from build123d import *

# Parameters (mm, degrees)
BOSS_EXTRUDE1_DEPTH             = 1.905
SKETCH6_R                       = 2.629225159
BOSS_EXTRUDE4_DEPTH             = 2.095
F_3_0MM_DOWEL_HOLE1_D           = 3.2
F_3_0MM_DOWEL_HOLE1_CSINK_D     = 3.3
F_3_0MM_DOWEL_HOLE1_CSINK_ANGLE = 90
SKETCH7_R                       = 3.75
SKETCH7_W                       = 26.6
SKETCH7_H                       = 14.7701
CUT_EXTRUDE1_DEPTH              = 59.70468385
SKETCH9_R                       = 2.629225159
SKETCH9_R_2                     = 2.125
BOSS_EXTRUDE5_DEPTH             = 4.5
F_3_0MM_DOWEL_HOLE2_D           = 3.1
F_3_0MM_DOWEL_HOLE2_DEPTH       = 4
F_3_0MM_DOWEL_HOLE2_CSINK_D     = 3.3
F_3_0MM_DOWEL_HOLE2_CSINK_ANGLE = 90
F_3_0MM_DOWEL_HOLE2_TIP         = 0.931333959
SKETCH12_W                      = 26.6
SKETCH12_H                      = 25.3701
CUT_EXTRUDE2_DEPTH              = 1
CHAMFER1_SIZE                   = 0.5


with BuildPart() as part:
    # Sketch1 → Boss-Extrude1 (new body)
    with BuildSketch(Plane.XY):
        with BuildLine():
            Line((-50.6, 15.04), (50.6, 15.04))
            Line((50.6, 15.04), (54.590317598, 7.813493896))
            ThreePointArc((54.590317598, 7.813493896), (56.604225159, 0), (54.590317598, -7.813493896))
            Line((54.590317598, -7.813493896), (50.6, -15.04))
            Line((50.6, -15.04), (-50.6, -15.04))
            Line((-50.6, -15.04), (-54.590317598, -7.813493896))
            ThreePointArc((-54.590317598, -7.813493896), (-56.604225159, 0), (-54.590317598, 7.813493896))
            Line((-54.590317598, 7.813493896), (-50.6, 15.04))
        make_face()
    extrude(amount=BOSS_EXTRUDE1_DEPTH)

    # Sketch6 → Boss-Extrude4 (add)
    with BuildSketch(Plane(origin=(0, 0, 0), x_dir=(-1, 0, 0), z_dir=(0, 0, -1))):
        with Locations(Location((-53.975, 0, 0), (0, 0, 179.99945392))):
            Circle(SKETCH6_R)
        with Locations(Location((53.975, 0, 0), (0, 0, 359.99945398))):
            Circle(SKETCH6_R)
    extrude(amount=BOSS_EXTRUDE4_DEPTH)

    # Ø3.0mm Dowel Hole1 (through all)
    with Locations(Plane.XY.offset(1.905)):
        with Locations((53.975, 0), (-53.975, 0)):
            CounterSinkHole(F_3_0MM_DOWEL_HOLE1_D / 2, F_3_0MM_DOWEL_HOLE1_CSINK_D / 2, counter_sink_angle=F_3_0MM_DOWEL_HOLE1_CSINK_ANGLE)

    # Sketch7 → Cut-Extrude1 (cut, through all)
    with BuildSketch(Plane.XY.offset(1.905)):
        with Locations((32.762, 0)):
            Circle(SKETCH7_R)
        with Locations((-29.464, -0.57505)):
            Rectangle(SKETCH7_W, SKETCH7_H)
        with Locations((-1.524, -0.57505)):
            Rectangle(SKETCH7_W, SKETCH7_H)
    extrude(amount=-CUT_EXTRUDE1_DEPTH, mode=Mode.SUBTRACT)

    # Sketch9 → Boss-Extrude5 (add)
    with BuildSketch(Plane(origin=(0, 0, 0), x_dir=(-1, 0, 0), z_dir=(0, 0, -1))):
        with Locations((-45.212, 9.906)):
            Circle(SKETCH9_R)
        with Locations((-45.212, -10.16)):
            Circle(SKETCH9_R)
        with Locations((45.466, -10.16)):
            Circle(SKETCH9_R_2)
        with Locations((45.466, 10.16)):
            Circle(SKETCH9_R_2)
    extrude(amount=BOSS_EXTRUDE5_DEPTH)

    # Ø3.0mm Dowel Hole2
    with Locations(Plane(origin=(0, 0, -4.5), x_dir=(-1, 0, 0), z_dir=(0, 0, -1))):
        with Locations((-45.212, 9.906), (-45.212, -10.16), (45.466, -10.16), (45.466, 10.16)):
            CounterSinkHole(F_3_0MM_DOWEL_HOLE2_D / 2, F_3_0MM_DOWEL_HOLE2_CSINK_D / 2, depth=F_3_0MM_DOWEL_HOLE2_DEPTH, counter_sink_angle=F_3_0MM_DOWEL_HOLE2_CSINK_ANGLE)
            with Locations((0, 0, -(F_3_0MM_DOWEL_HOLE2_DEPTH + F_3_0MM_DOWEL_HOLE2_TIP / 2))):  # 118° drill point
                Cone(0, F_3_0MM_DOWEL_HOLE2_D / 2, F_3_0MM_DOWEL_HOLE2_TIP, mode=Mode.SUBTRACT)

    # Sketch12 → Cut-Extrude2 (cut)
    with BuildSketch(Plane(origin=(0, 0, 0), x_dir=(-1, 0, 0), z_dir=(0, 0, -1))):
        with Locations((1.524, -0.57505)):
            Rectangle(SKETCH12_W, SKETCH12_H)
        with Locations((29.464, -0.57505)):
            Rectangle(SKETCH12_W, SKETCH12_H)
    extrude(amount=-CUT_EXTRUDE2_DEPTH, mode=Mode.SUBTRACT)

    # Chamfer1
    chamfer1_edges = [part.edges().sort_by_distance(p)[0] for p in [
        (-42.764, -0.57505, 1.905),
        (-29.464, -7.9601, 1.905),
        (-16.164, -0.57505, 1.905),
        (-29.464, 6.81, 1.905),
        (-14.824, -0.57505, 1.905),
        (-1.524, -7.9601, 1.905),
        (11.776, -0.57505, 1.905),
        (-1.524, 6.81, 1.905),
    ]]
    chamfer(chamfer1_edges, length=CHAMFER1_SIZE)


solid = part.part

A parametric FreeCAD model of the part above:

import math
import FreeCAD as App
import Part
import Sketcher


def edges_at(feature, points):
    """Names of the edges that pass closest to the given points."""
    edges = feature.Shape.Edges
    near = lambda p: min(range(len(edges)), key=lambda i: edges[i].distToShape(Part.Vertex(*p))[0])
    return sorted({f"Edge{near(p) + 1}" for p in points})

doc = App.newDocument("Part")
params = doc.addObject("Spreadsheet::Sheet", "Params")
for row, (alias, value) in enumerate([
    ("sketch1_width", "101.2 mm"),
    ("pad1_length", "1.905 mm"),
    ("pad2_length", "2.095 mm"),
    ("sketch3_diameter", "3.2 mm"),
    ("hole_diameter", "3.2 mm"),
    ("hole_csink_diameter", "3.3 mm"),
    ("sketch4_diameter", "7.5 mm"),
    ("sketch4_width", "26.6 mm"),
    ("sketch5_diameter", "4.25 mm"),
    ("pad3_length", "4.5 mm"),
    ("sketch6_diameter", "3.1 mm"),
    ("hole2_diameter", "3.1 mm"),
    ("hole2_depth", "4 mm"),
    ("hole2_csink_diameter", "3.3 mm"),
    ("sketch7_width", "26.6 mm"),
    ("pocket2_length", "1 mm"),
    ("chamfer_size", "0.5 mm"),
], start=1):
    params.set(f"A{row}", alias)
    params.set(f"B{row}", "=" + value)
    params.setAlias(f"B{row}", alias)

body = doc.addObject("PartDesign::Body", "Body")

sketch1 = doc.addObject("Sketcher::SketchObject", "Sketch")
body.addObject(sketch1)
sketch1.AttachmentSupport = (doc.XY_Plane, [""])
sketch1.MapMode = "FlatFace"
sketch1.addGeometry([
    Part.LineSegment(App.Vector(50.6, 15.04, 0), App.Vector(-50.6, 15.04, 0)),
    Part.LineSegment(App.Vector(-50.6, 15.04, 0), App.Vector(-54.590318, 7.813494, 0)),
    Part.ArcOfCircle(Part.Circle(App.Vector(-40.44, 0, 0), App.Vector(0, 0, 1), 16.164225), math.radians(151.093487), math.radians(208.906513)),
    Part.LineSegment(App.Vector(-54.590318, -7.813494, 0), App.Vector(-50.6, -15.04, 0)),
    Part.LineSegment(App.Vector(-50.6, -15.04, 0), App.Vector(50.6, -15.04, 0)),
    Part.LineSegment(App.Vector(50.6, -15.04, 0), App.Vector(54.590318, -7.813494, 0)),
    Part.ArcOfCircle(Part.Circle(App.Vector(40.44, 0, 0), App.Vector(0, 0, 1), 16.164225), math.radians(-28.906513), math.radians(28.906513)),
    Part.LineSegment(App.Vector(54.590318, 7.813494, 0), App.Vector(50.6, 15.04, 0)),
], False)
sketch1.addConstraint([
    Sketcher.Constraint("Coincident", 0, 2, 1, 1),
    Sketcher.Constraint("Tangent", 1, 2, 2, 1),
    Sketcher.Constraint("Tangent", 2, 2, 3, 1),
    Sketcher.Constraint("Coincident", 3, 2, 4, 1),
    Sketcher.Constraint("Coincident", 4, 2, 5, 1),
    Sketcher.Constraint("Tangent", 5, 2, 6, 1),
    Sketcher.Constraint("Tangent", 6, 2, 7, 1),
    Sketcher.Constraint("Coincident", 7, 2, 0, 1),
    Sketcher.Constraint("Horizontal", 0),
    Sketcher.Constraint("Horizontal", 4),
    Sketcher.Constraint("Equal", 2, 6),
    Sketcher.Constraint("Symmetric", 2, 3, 6, 3, -1, 1),
    Sketcher.Constraint("Symmetric", 0, 2, 4, 2, -1, 1),
    Sketcher.Constraint("Symmetric", 2, 2, 5, 2, -2),
    Sketcher.Constraint("Parallel", 3, 7),
    Sketcher.Constraint("DistanceX", 0, 2, 0, 1, 101.2),
    Sketcher.Constraint("DistanceX", 2, 3, -1, 1, 40.44),
    Sketcher.Constraint("DistanceY", -1, 1, 0, 2, 15.04),
    Sketcher.Constraint("Distance", 1, 8.255),
])
sketch1.setExpression("Constraints[15]", "Params.sketch1_width")
pad1 = doc.addObject("PartDesign::Pad", "Pad")
body.addObject(pad1)
pad1.Profile = sketch1
pad1.setExpression("Length", "Params.pad1_length")

sketch2 = doc.addObject("Sketcher::SketchObject", "Sketch001")
body.addObject(sketch2)
sketch2.AttachmentSupport = (doc.XY_Plane, [""])
sketch2.MapMode = "FlatFace"
sketch2.addGeometry([
    Part.Circle(App.Vector(53.975, 0, 0), App.Vector(0, 0, 1), 2.629225),
    Part.Circle(App.Vector(-53.975, 0, 0), App.Vector(0, 0, 1), 2.629225),
], False)
sketch2.addConstraint([
    Sketcher.Constraint("Equal", 0, 1),
    Sketcher.Constraint("Symmetric", 0, 3, 1, 3, -1, 1),
    Sketcher.Constraint("PointOnObject", 0, 3, -1),
    Sketcher.Constraint("Diameter", 0, 5.25845),
    Sketcher.Constraint("DistanceX", 1, 3, 0, 3, 107.95),
])
pad2 = doc.addObject("PartDesign::Pad", "Pad001")
body.addObject(pad2)
pad2.Profile = sketch2
pad2.setExpression("Length", "Params.pad2_length")
pad2.Reversed = True

sketch3 = doc.addObject("Sketcher::SketchObject", "Sketch002")
body.addObject(sketch3)
sketch3.AttachmentSupport = (doc.XY_Plane, [""])
sketch3.MapMode = "FlatFace"
sketch3.AttachmentOffset = App.Placement(App.Vector(0, 0, 1.905), App.Rotation())
sketch3.addGeometry([
    Part.Circle(App.Vector(53.975, 0, 0), App.Vector(0, 0, 1), 1.6),
    Part.Circle(App.Vector(-53.975, 0, 0), App.Vector(0, 0, 1), 1.6),
], False)
sketch3.addConstraint([
    Sketcher.Constraint("Equal", 0, 1),
    Sketcher.Constraint("Symmetric", 0, 3, 1, 3, -1, 1),
    Sketcher.Constraint("PointOnObject", 0, 3, -1),
    Sketcher.Constraint("Diameter", 0, 3.2),
    Sketcher.Constraint("DistanceX", 1, 3, 0, 3, 107.95),
])
sketch3.setExpression("Constraints[3]", "Params.sketch3_diameter")
doc.recompute()
hole = doc.addObject("PartDesign::Hole", "Hole")
body.addObject(hole)
hole.Profile = sketch3
hole.ThreadType = "None"
hole.setExpression("Diameter", "Params.hole_diameter")
hole.DepthType = "ThroughAll"
hole.HoleCutType = "Countersink"
hole.setExpression("HoleCutDiameter", "Params.hole_csink_diameter")
hole.HoleCutCountersinkAngle = 90

sketch4 = doc.addObject("Sketcher::SketchObject", "Sketch003")
body.addObject(sketch4)
sketch4.AttachmentSupport = (doc.XY_Plane, [""])
sketch4.MapMode = "FlatFace"
sketch4.AttachmentOffset = App.Placement(App.Vector(0, 0, 1.905), App.Rotation())
sketch4.addGeometry([
    Part.Circle(App.Vector(32.762, 0, 0), App.Vector(0, 0, 1), 3.75),
    Part.LineSegment(App.Vector(-42.764, 6.81, 0), App.Vector(-42.764, -7.9601, 0)),
    Part.LineSegment(App.Vector(-42.764, -7.9601, 0), App.Vector(-16.164, -7.9601, 0)),
    Part.LineSegment(App.Vector(-16.164, -7.9601, 0), App.Vector(-16.164, 6.81, 0)),
    Part.LineSegment(App.Vector(-16.164, 6.81, 0), App.Vector(-42.764, 6.81, 0)),
    Part.LineSegment(App.Vector(-14.824, 6.81, 0), App.Vector(-14.824, -7.9601, 0)),
    Part.LineSegment(App.Vector(-14.824, -7.9601, 0), App.Vector(11.776, -7.9601, 0)),
    Part.LineSegment(App.Vector(11.776, -7.9601, 0), App.Vector(11.776, 6.81, 0)),
    Part.LineSegment(App.Vector(11.776, 6.81, 0), App.Vector(-14.824, 6.81, 0)),
], False)
sketch4.addConstraint([
    Sketcher.Constraint("Coincident", 1, 2, 2, 1),
    Sketcher.Constraint("Coincident", 2, 2, 3, 1),
    Sketcher.Constraint("Coincident", 3, 2, 4, 1),
    Sketcher.Constraint("Coincident", 4, 2, 1, 1),
    Sketcher.Constraint("Coincident", 5, 2, 6, 1),
    Sketcher.Constraint("Coincident", 6, 2, 7, 1),
    Sketcher.Constraint("Coincident", 7, 2, 8, 1),
    Sketcher.Constraint("Coincident", 8, 2, 5, 1),
    Sketcher.Constraint("Vertical", 1),
    Sketcher.Constraint("Horizontal", 2),
    Sketcher.Constraint("Vertical", 3),
    Sketcher.Constraint("Horizontal", 4),
    Sketcher.Constraint("Vertical", 5),
    Sketcher.Constraint("Horizontal", 6),
    Sketcher.Constraint("Vertical", 7),
    Sketcher.Constraint("Horizontal", 8),
    Sketcher.Constraint("PointOnObject", 0, 3, -1),
    Sketcher.Constraint("Horizontal", 2, 2, 5, 2),
    Sketcher.Constraint("Horizontal", 4, 2, 7, 2),
    Sketcher.Constraint("Equal", 4, 6),
    Sketcher.Constraint("Diameter", 0, 7.5),
    Sketcher.Constraint("DistanceX", 2, 1, 2, 2, 26.6),
    Sketcher.Constraint("DistanceY", -1, 1, 3, 2, 6.81),
    Sketcher.Constraint("DistanceX", 2, 2, 5, 2, 1.34),
    Sketcher.Constraint("DistanceY", 1, 2, 1, 1, 14.7701),
    Sketcher.Constraint("DistanceX", -1, 1, 0, 3, 32.762),
    Sketcher.Constraint("DistanceX", 1, 2, -1, 1, 42.764),
])
sketch4.setExpression("Constraints[20]", "Params.sketch4_diameter")
sketch4.setExpression("Constraints[21]", "Params.sketch4_width")
pocket1 = doc.addObject("PartDesign::Pocket", "Pocket")
body.addObject(pocket1)
pocket1.Profile = sketch4
pocket1.Type = "ThroughAll"

sketch5 = doc.addObject("Sketcher::SketchObject", "Sketch004")
body.addObject(sketch5)
sketch5.AttachmentSupport = (doc.XY_Plane, [""])
sketch5.MapMode = "FlatFace"
sketch5.addGeometry([
    Part.Circle(App.Vector(45.212, 9.906, 0), App.Vector(0, 0, 1), 2.629225),
    Part.Circle(App.Vector(45.212, -10.16, 0), App.Vector(0, 0, 1), 2.629225),
    Part.Circle(App.Vector(-45.466, -10.16, 0), App.Vector(0, 0, 1), 2.125),
    Part.Circle(App.Vector(-45.466, 10.16, 0), App.Vector(0, 0, 1), 2.125),
], False)
sketch5.addConstraint([
    Sketcher.Constraint("Equal", 0, 1),
    Sketcher.Constraint("Equal", 2, 3),
    Sketcher.Constraint("Symmetric", 2, 3, 3, 3, -1),
    Sketcher.Constraint("Horizontal", 1, 3, 2, 3),
    Sketcher.Constraint("Vertical", 0, 3, 1, 3),
    Sketcher.Constraint("Diameter", 2, 4.25),
    Sketcher.Constraint("Diameter", 0, 5.25845),
    Sketcher.Constraint("DistanceY", 1, 3, -1, 1, 10.16),
    Sketcher.Constraint("DistanceX", -1, 1, 0, 3, 45.212),
    Sketcher.Constraint("DistanceY", -1, 1, 0, 3, 9.906),
    Sketcher.Constraint("DistanceX", 2, 3, -1, 1, 45.466),
])
sketch5.setExpression("Constraints[5]", "Params.sketch5_diameter")
pad3 = doc.addObject("PartDesign::Pad", "Pad002")
body.addObject(pad3)
pad3.Profile = sketch5
pad3.setExpression("Length", "Params.pad3_length")
pad3.Reversed = True

sketch6 = doc.addObject("Sketcher::SketchObject", "Sketch005")
body.addObject(sketch6)
sketch6.AttachmentSupport = (doc.XY_Plane, [""])
sketch6.MapMode = "FlatFace"
sketch6.AttachmentOffset = App.Placement(App.Vector(0, 0, -4.5), App.Rotation())
sketch6.addGeometry([
    Part.Circle(App.Vector(45.212, 9.906, 0), App.Vector(0, 0, 1), 1.55),
    Part.Circle(App.Vector(45.212, -10.16, 0), App.Vector(0, 0, 1), 1.55),
    Part.Circle(App.Vector(-45.466, -10.16, 0), App.Vector(0, 0, 1), 1.55),
    Part.Circle(App.Vector(-45.466, 10.16, 0), App.Vector(0, 0, 1), 1.55),
], False)
sketch6.addConstraint([
    Sketcher.Constraint("Equal", 0, 1),
    Sketcher.Constraint("Equal", 1, 2),
    Sketcher.Constraint("Equal", 2, 3),
    Sketcher.Constraint("Symmetric", 2, 3, 3, 3, -1),
    Sketcher.Constraint("Horizontal", 1, 3, 2, 3),
    Sketcher.Constraint("Vertical", 0, 3, 1, 3),
    Sketcher.Constraint("Diameter", 0, 3.1),
    Sketcher.Constraint("DistanceY", 1, 3, -1, 1, 10.16),
    Sketcher.Constraint("DistanceX", -1, 1, 0, 3, 45.212),
    Sketcher.Constraint("DistanceY", -1, 1, 0, 3, 9.906),
    Sketcher.Constraint("DistanceX", 2, 3, -1, 1, 45.466),
])
sketch6.setExpression("Constraints[6]", "Params.sketch6_diameter")
doc.recompute()
hole2 = doc.addObject("PartDesign::Hole", "Hole001")
body.addObject(hole2)
hole2.Profile = sketch6
hole2.ThreadType = "None"
hole2.setExpression("Diameter", "Params.hole2_diameter")
hole2.DepthType = "Dimension"
hole2.setExpression("Depth", "Params.hole2_depth")
hole2.DrillPoint = "Angled"
hole2.DrillPointAngle = 118
hole2.HoleCutType = "Countersink"
hole2.setExpression("HoleCutDiameter", "Params.hole2_csink_diameter")
hole2.HoleCutCountersinkAngle = 90
hole2.Reversed = True

sketch7 = doc.addObject("Sketcher::SketchObject", "Sketch006")
body.addObject(sketch7)
sketch7.AttachmentSupport = (doc.XY_Plane, [""])
sketch7.MapMode = "FlatFace"
sketch7.addGeometry([
    Part.LineSegment(App.Vector(11.776, 12.11, 0), App.Vector(11.776, -13.2601, 0)),
    Part.LineSegment(App.Vector(11.776, -13.2601, 0), App.Vector(-14.824, -13.2601, 0)),
    Part.LineSegment(App.Vector(-14.824, -13.2601, 0), App.Vector(-14.824, 12.11, 0)),
    Part.LineSegment(App.Vector(-14.824, 12.11, 0), App.Vector(11.776, 12.11, 0)),
    Part.LineSegment(App.Vector(-16.164, 12.11, 0), App.Vector(-16.164, -13.2601, 0)),
    Part.LineSegment(App.Vector(-16.164, -13.2601, 0), App.Vector(-42.764, -13.2601, 0)),
    Part.LineSegment(App.Vector(-42.764, -13.2601, 0), App.Vector(-42.764, 12.11, 0)),
    Part.LineSegment(App.Vector(-42.764, 12.11, 0), App.Vector(-16.164, 12.11, 0)),
], False)
sketch7.addConstraint([
    Sketcher.Constraint("Coincident", 0, 2, 1, 1),
    Sketcher.Constraint("Coincident", 1, 2, 2, 1),
    Sketcher.Constraint("Coincident", 2, 2, 3, 1),
    Sketcher.Constraint("Coincident", 3, 2, 0, 1),
    Sketcher.Constraint("Coincident", 4, 2, 5, 1),
    Sketcher.Constraint("Coincident", 5, 2, 6, 1),
    Sketcher.Constraint("Coincident", 6, 2, 7, 1),
    Sketcher.Constraint("Coincident", 7, 2, 4, 1),
    Sketcher.Constraint("Vertical", 0),
    Sketcher.Constraint("Horizontal", 1),
    Sketcher.Constraint("Vertical", 2),
    Sketcher.Constraint("Horizontal", 3),
    Sketcher.Constraint("Vertical", 4),
    Sketcher.Constraint("Horizontal", 5),
    Sketcher.Constraint("Vertical", 6),
    Sketcher.Constraint("Horizontal", 7),
    Sketcher.Constraint("Horizontal", 1, 2, 4, 2),
    Sketcher.Constraint("Horizontal", 3, 2, 6, 2),
    Sketcher.Constraint("Equal", 3, 5),
    Sketcher.Constraint("DistanceX", 1, 2, 1, 1, 26.6),
    Sketcher.Constraint("DistanceY", -1, 1, 2, 2, 12.11),
    Sketcher.Constraint("DistanceX", 4, 2, 1, 2, 1.34),
    Sketcher.Constraint("DistanceY", 0, 2, 0, 1, 25.3701),
    Sketcher.Constraint("DistanceX", -1, 1, 0, 2, 11.776),
])
sketch7.setExpression("Constraints[19]", "Params.sketch7_width")
pocket2 = doc.addObject("PartDesign::Pocket", "Pocket001")
body.addObject(pocket2)
pocket2.Profile = sketch7
pocket2.setExpression("Length", "Params.pocket2_length")
pocket2.Reversed = True
doc.recompute()

chamfer = doc.addObject("PartDesign::Chamfer", "Chamfer")
body.addObject(chamfer)
chamfer.Base = (pocket2, edges_at(pocket2, [
    (-42.764, -0.575, 1.905),
    (-29.464, -7.96, 1.905),
    (-16.164, -0.575, 1.905),
    (-29.464, 6.81, 1.905),
    (-14.824, -0.575, 1.905),
    (-1.524, -7.96, 1.905),
    (11.776, -0.575, 1.905),
    (-1.524, 6.81, 1.905),
]))
chamfer.setExpression("Size", "Params.chamfer_size")

doc.recompute()
